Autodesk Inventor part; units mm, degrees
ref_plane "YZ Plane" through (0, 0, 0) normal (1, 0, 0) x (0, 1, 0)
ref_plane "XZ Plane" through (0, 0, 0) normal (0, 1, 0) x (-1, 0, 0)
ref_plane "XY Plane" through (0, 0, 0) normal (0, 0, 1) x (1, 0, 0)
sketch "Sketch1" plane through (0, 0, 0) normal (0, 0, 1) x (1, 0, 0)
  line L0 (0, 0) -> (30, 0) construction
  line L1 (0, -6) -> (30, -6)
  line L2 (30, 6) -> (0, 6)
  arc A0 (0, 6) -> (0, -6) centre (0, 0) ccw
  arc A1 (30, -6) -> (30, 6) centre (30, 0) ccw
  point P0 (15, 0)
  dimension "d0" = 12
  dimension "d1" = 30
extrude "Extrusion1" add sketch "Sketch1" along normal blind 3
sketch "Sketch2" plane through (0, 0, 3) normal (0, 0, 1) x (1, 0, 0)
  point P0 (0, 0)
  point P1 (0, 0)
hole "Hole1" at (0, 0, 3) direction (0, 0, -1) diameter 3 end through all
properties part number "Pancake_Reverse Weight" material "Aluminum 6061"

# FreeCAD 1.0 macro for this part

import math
import FreeCAD as App
import Part
import Sketcher
from FreeCAD import Vector
Q = App.Units.Quantity

doc = App.newDocument("Part")
body = doc.addObject("PartDesign::Body", "Body")

sketch1 = body.newObject("Sketcher::SketchObject", "Sketch")
sketch1.AttachmentSupport = (doc.getObject("XY_Plane"), [""])
sketch1.MapMode = "FlatFace"
sketch1.addGeometry(Part.ArcOfCircle(Part.Circle(Vector(0, 0, 0), Vector(0, 0, 1), 6), math.radians(90), math.radians(270)), False)
sketch1.addGeometry(Part.LineSegment(Vector(0, -6, 0), Vector(30, -6, 0)), False)
sketch1.addGeometry(Part.ArcOfCircle(Part.Circle(Vector(30, 0, 0), Vector(0, 0, 1), 6), math.radians(-90), math.radians(90)), False)
sketch1.addGeometry(Part.LineSegment(Vector(30, 6, 0), Vector(0, 6, 0)), False)
sketch1.addConstraint(Sketcher.Constraint("Tangent", 0, 2, 1, 1))
sketch1.addConstraint(Sketcher.Constraint("Tangent", 1, 2, 2, 1))
sketch1.addConstraint(Sketcher.Constraint("Tangent", 2, 2, 3, 1))
sketch1.addConstraint(Sketcher.Constraint("Tangent", 3, 2, 0, 1))
sketch1.addConstraint(Sketcher.Constraint("Horizontal", 1))
sketch1.addConstraint(Sketcher.Constraint("Horizontal", 3))
sketch1.addConstraint(Sketcher.Constraint("Coincident", 0, 3, -1, 1))
sketch1.addConstraint(Sketcher.Constraint("Radius", 0, Q("6 mm")))
sketch1.addConstraint(Sketcher.Constraint("DistanceX", 1, 1, 1, 2, Q("30 mm")))
pad1 = body.newObject("PartDesign::Pad", "Pad")
pad1.Profile = sketch1
pad1.Length = 3

sketch2 = body.newObject("Sketcher::SketchObject", "Sketch001")
sketch2.AttachmentSupport = (doc.getObject("XY_Plane"), [""])
sketch2.MapMode = "FlatFace"
sketch2.AttachmentOffset = App.Placement(Vector(0, 0, 3), App.Rotation())
sketch2.addGeometry(Part.Circle(Vector(0, 0, 0), Vector(0, 0, 1), 1.5), False)
sketch2.addConstraint(Sketcher.Constraint("Coincident", 0, 3, -1, 1))
sketch2.addConstraint(Sketcher.Constraint("Diameter", 0, Q("3 mm")))
doc.recompute()
hole = body.newObject("PartDesign::Hole", "Hole")
hole.Profile = sketch2
hole.ThreadType = "None"
hole.Diameter = 3
hole.DepthType = "ThroughAll"

doc.recompute()
